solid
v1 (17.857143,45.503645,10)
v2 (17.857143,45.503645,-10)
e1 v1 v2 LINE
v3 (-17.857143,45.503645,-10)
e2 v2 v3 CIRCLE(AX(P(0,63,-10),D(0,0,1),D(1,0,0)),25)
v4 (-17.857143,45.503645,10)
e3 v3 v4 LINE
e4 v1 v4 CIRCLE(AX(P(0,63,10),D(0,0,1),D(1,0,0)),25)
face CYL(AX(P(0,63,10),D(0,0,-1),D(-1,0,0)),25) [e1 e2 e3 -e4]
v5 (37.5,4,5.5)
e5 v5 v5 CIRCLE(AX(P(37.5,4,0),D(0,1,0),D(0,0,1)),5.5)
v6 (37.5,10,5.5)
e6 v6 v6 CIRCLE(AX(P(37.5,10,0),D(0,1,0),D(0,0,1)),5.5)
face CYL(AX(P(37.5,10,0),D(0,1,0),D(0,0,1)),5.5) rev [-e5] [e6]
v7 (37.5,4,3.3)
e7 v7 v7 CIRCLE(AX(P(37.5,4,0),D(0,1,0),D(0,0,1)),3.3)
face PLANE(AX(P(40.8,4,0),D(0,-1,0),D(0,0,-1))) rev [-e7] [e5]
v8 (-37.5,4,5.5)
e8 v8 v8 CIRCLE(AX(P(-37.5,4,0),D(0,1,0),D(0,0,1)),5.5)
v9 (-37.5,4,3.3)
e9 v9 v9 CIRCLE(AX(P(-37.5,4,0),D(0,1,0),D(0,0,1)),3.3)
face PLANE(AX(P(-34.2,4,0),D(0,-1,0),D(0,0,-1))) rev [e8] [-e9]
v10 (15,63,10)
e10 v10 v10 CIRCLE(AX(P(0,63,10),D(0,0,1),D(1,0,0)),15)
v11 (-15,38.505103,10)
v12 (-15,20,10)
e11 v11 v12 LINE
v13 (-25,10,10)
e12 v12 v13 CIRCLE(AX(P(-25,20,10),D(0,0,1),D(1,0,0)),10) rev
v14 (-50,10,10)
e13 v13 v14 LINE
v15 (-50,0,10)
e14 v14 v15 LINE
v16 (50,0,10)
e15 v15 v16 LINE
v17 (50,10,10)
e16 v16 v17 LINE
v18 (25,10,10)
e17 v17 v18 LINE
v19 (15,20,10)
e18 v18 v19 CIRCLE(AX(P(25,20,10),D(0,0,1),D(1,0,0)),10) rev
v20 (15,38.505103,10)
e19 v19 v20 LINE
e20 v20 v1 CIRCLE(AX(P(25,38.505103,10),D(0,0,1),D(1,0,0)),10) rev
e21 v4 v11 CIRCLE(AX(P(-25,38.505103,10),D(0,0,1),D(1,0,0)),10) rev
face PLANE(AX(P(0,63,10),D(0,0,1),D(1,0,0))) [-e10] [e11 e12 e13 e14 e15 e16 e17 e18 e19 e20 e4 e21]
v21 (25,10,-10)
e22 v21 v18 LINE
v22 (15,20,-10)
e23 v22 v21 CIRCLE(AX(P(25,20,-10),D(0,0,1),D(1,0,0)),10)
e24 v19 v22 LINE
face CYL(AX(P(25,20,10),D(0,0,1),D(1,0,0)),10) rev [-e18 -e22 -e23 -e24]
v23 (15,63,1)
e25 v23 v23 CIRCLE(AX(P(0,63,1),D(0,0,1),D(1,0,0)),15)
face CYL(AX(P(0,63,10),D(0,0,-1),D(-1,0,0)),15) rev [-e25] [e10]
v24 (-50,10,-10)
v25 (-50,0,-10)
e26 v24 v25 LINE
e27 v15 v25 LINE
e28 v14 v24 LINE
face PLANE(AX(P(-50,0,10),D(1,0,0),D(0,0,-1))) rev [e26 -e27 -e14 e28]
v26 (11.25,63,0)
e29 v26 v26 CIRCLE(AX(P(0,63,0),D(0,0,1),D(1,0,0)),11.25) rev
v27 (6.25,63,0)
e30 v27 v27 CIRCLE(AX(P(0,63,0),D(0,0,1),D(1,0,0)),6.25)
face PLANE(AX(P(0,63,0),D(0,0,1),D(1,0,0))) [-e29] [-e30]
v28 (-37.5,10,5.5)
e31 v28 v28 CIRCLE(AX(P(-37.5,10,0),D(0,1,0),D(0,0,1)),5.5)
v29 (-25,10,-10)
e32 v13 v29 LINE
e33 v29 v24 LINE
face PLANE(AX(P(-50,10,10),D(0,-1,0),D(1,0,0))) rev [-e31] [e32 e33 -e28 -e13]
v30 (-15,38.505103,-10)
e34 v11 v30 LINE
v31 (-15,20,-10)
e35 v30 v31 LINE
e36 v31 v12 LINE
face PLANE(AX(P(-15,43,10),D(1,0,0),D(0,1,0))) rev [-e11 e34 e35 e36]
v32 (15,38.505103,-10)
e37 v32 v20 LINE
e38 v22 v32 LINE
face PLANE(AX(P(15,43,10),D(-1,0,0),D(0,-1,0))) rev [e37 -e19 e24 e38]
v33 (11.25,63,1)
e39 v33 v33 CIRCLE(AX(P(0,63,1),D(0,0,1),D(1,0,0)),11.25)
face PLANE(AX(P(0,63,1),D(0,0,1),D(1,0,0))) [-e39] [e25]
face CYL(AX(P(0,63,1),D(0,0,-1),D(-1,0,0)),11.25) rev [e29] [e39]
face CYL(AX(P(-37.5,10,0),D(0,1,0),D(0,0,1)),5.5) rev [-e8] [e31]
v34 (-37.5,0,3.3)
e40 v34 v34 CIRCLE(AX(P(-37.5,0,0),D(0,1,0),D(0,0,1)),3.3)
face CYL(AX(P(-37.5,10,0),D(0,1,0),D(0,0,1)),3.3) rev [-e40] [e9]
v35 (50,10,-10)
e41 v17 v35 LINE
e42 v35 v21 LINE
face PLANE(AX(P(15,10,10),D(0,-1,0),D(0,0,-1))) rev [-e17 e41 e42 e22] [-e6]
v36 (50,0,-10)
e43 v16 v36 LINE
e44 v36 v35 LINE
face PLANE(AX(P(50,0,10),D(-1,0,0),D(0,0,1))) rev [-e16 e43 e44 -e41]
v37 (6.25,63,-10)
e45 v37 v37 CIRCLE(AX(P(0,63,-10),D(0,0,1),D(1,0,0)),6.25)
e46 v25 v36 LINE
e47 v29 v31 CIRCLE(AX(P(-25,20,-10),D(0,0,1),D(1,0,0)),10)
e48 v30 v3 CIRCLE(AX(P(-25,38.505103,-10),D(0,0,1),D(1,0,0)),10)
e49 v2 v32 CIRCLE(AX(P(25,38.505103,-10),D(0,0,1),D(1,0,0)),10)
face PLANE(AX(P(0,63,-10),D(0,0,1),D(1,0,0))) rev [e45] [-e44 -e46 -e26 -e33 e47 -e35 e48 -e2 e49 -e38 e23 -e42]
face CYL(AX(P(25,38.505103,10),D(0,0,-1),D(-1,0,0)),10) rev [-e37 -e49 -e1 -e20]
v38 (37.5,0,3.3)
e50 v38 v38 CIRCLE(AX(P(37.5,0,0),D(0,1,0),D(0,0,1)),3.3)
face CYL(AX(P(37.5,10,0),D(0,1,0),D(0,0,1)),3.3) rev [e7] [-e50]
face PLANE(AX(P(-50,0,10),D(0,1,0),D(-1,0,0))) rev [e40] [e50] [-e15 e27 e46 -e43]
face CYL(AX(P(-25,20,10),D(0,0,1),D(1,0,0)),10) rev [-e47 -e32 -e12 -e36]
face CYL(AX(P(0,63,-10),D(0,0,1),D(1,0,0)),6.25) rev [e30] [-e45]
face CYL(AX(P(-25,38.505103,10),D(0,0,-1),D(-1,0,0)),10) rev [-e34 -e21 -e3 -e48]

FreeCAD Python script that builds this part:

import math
import FreeCAD as App
import Part
import Sketcher
from FreeCAD import Vector


def edges_at(feature, points):
    """Names of the edges that pass closest to the given points."""
    edges = feature.Shape.Edges
    near = lambda p: min(range(len(edges)), key=lambda i: edges[i].distToShape(Part.Vertex(*p))[0])
    return sorted({f"Edge{near(p) + 1}" for p in points})

doc = App.newDocument("Part")
params = doc.addObject("Spreadsheet::Sheet", "Params")
for row, (alias, value) in enumerate([
    ("sketch1_diameter", "30 mm"),
    ("sketch1_radius", "25 mm"),
    ("sketch1_width", "35 mm"),
    ("sketch1_width2", "100 mm"),
    ("sketch1_height", "33 mm"),
    ("pad1_length", "20 mm"),
    ("sketch2_diameter", "30 mm"),
    ("sketch2_diameter2", "12.5 mm"),
    ("pad2_length", "10 mm"),
    ("fillet_radius", "10 mm"),
    ("sketch3_diameter", "6.6 mm"),
    ("hole_diameter", "6.6 mm"),
    ("hole_cbore_diameter", "11 mm"),
    ("hole_cbore_depth", "6 mm"),
    ("sketch4_diameter", "30 mm"),
    ("sketch4_diameter2", "22.5 mm"),
    ("pad3_length", "1 mm"),
], start=1):
    params.set(f"A{row}", alias)
    params.set(f"B{row}", "=" + value)
    params.setAlias(f"B{row}", alias)

body = doc.addObject("PartDesign::Body", "Body")

# Sketch on XY plane
sketch1 = body.newObject("Sketcher::SketchObject", "Sketch")
sketch1.AttachmentSupport = (doc.getObject("XY_Plane"), [""])
sketch1.MapMode = "FlatFace"
sketch1.addGeometry(Part.LineSegment(Vector(15, 10, 0), Vector(15, 43, 0)), False)
sketch1.addGeometry(Part.ArcOfCircle(Part.Circle(Vector(0, 63, 0), Vector(0, 0, 1), 25), math.radians(-53), math.radians(233)), False)
sketch1.addGeometry(Part.LineSegment(Vector(-15, 43, 0), Vector(-15, 10, 0)), False)
sketch1.addGeometry(Part.LineSegment(Vector(-15, 10, 0), Vector(-50, 10, 0)), False)
sketch1.addGeometry(Part.LineSegment(Vector(-50, 10, 0), Vector(-50, 0, 0)), False)
sketch1.addGeometry(Part.LineSegment(Vector(-50, 0, 0), Vector(50, 0, 0)), False)
sketch1.addGeometry(Part.LineSegment(Vector(50, 0, 0), Vector(50, 10, 0)), False)
sketch1.addGeometry(Part.LineSegment(Vector(50, 10, 0), Vector(15, 10, 0)), False)
sketch1.addGeometry(Part.Circle(Vector(0, 63, 0), Vector(0, 0, 1), 15), False)
sketch1.addConstraint(Sketcher.Constraint("Coincident", 0, 2, 1, 1))
sketch1.addConstraint(Sketcher.Constraint("Coincident", 1, 2, 2, 1))
sketch1.addConstraint(Sketcher.Constraint("Coincident", 2, 2, 3, 1))
sketch1.addConstraint(Sketcher.Constraint("Coincident", 3, 2, 4, 1))
sketch1.addConstraint(Sketcher.Constraint("Coincident", 4, 2, 5, 1))
sketch1.addConstraint(Sketcher.Constraint("Coincident", 5, 2, 6, 1))
sketch1.addConstraint(Sketcher.Constraint("Coincident", 6, 2, 7, 1))
sketch1.addConstraint(Sketcher.Constraint("Coincident", 7, 2, 0, 1))
sketch1.addConstraint(Sketcher.Constraint("Vertical", 0))
sketch1.addConstraint(Sketcher.Constraint("Vertical", 2))
sketch1.addConstraint(Sketcher.Constraint("Horizontal", 3))
sketch1.addConstraint(Sketcher.Constraint("Vertical", 4))
sketch1.addConstraint(Sketcher.Constraint("Horizontal", 5))
sketch1.addConstraint(Sketcher.Constraint("Vertical", 6))
sketch1.addConstraint(Sketcher.Constraint("Horizontal", 7))
sketch1.addConstraint(Sketcher.Constraint("Coincident", 8, 3, 1, 3))
sketch1.addConstraint(Sketcher.Constraint("Symmetric", 4, 2, 5, 2, -1, 1))
sketch1.addConstraint(Sketcher.Constraint("Symmetric", 0, 2, 1, 2, -2))
sketch1.addConstraint(Sketcher.Constraint("Horizontal", 3, 2, 6, 2))
sketch1.addConstraint(Sketcher.Constraint("Diameter", 8, 30.0))
sketch1.addConstraint(Sketcher.Constraint("Radius", 1, 25.0))
sketch1.addConstraint(Sketcher.Constraint("DistanceX", 3, 2, 3, 1, 35.0))
sketch1.addConstraint(Sketcher.Constraint("DistanceX", 5, 1, 5, 2, 100.0))
sketch1.addConstraint(Sketcher.Constraint("DistanceY", 0, 1, 0, 2, 33.0))
sketch1.addConstraint(Sketcher.Constraint("DistanceY", 4, 2, 4, 1, 10.0))
sketch1.setExpression("Constraints[19]", "Params.sketch1_diameter")
sketch1.setExpression("Constraints[20]", "Params.sketch1_radius")
sketch1.setExpression("Constraints[21]", "Params.sketch1_width")
sketch1.setExpression("Constraints[22]", "Params.sketch1_width2")
sketch1.setExpression("Constraints[23]", "Params.sketch1_height")
pad1 = body.newObject("PartDesign::Pad", "Pad")
pad1.Profile = sketch1
pad1.setExpression("Length", "Params.pad1_length")
pad1.Midplane = True

# Sketch on XY plane
sketch2 = body.newObject("Sketcher::SketchObject", "Sketch001")
sketch2.AttachmentSupport = (doc.getObject("XY_Plane"), [""])
sketch2.MapMode = "FlatFace"
sketch2.addGeometry(Part.Circle(Vector(0, 63, 0), Vector(0, 0, 1), 15), False)
sketch2.addGeometry(Part.Circle(Vector(0, 63, 0), Vector(0, 0, 1), 6), False)
sketch2.addConstraint(Sketcher.Constraint("Coincident", 1, 3, 0, 3))
sketch2.addConstraint(Sketcher.Constraint("PointOnObject", 0, 3, -2))
sketch2.addConstraint(Sketcher.Constraint("Diameter", 0, 30.0))
sketch2.addConstraint(Sketcher.Constraint("Diameter", 1, 12.5))
sketch2.addConstraint(Sketcher.Constraint("DistanceY", -1, 1, 0, 3, 63.0))
sketch2.setExpression("Constraints[2]", "Params.sketch2_diameter")
sketch2.setExpression("Constraints[3]", "Params.sketch2_diameter2")
pad2 = body.newObject("PartDesign::Pad", "Pad001")
pad2.Profile = sketch2
pad2.setExpression("Length", "Params.pad2_length")
pad2.Reversed = True
doc.recompute()

fillet = body.newObject("PartDesign::Fillet", "Fillet")
fillet.Base = (pad2, edges_at(pad2, [
    (-15, 10, 0),
    (-15, 43, 0),
    (15, 43, 0),
    (15, 10, 0),
]))
fillet.setExpression("Radius", "Params.fillet_radius")

# Sketch on XZ plane
sketch3 = body.newObject("Sketcher::SketchObject", "Sketch002")
sketch3.AttachmentSupport = (doc.getObject("XZ_Plane"), [""])
sketch3.MapMode = "FlatFace"
sketch3.AttachmentOffset = App.Placement(Vector(0, 0, -10), App.Rotation())
sketch3.addGeometry(Part.Circle(Vector(-37.5, 0, 0), Vector(0, 0, 1), 3.3), False)
sketch3.addGeometry(Part.Circle(Vector(37.5, 0, 0), Vector(0, 0, 1), 3.3), False)
sketch3.addConstraint(Sketcher.Constraint("Equal", 0, 1))
sketch3.addConstraint(Sketcher.Constraint("Symmetric", 0, 3, 1, 3, -1, 1))
sketch3.addConstraint(Sketcher.Constraint("PointOnObject", 0, 3, -1))
sketch3.addConstraint(Sketcher.Constraint("Diameter", 0, 6.6))
sketch3.addConstraint(Sketcher.Constraint("DistanceX", 0, 3, 1, 3, 75.0))
sketch3.setExpression("Constraints[3]", "Params.sketch3_diameter")
doc.recompute()
hole = body.newObject("PartDesign::Hole", "Hole")
hole.Profile = sketch3
hole.ThreadType = "None"
hole.setExpression("Diameter", "Params.hole_diameter")
hole.DepthType = "ThroughAll"
hole.HoleCutType = "Counterbore"
hole.setExpression("HoleCutDiameter", "Params.hole_cbore_diameter")
hole.setExpression("HoleCutDepth", "Params.hole_cbore_depth")
hole.Reversed = True

# Sketch on XY plane
sketch4 = body.newObject("Sketcher::SketchObject", "Sketch003")
sketch4.AttachmentSupport = (doc.getObject("XY_Plane"), [""])
sketch4.MapMode = "FlatFace"
sketch4.addGeometry(Part.Circle(Vector(0, 63, 0), Vector(0, 0, 1), 15), False)
sketch4.addGeometry(Part.Circle(Vector(0, 63, 0), Vector(0, 0, 1), 11), False)
sketch4.addConstraint(Sketcher.Constraint("Coincident", 1, 3, 0, 3))
sketch4.addConstraint(Sketcher.Constraint("PointOnObject", 0, 3, -2))
sketch4.addConstraint(Sketcher.Constraint("Diameter", 0, 30.0))
sketch4.addConstraint(Sketcher.Constraint("Diameter", 1, 22.5))
sketch4.addConstraint(Sketcher.Constraint("DistanceY", -1, 1, 0, 3, 63.0))
sketch4.setExpression("Constraints[2]", "Params.sketch4_diameter")
sketch4.setExpression("Constraints[3]", "Params.sketch4_diameter2")
pad3 = body.newObject("PartDesign::Pad", "Pad002")
pad3.Profile = sketch4
pad3.setExpression("Length", "Params.pad3_length")

doc.recompute()
